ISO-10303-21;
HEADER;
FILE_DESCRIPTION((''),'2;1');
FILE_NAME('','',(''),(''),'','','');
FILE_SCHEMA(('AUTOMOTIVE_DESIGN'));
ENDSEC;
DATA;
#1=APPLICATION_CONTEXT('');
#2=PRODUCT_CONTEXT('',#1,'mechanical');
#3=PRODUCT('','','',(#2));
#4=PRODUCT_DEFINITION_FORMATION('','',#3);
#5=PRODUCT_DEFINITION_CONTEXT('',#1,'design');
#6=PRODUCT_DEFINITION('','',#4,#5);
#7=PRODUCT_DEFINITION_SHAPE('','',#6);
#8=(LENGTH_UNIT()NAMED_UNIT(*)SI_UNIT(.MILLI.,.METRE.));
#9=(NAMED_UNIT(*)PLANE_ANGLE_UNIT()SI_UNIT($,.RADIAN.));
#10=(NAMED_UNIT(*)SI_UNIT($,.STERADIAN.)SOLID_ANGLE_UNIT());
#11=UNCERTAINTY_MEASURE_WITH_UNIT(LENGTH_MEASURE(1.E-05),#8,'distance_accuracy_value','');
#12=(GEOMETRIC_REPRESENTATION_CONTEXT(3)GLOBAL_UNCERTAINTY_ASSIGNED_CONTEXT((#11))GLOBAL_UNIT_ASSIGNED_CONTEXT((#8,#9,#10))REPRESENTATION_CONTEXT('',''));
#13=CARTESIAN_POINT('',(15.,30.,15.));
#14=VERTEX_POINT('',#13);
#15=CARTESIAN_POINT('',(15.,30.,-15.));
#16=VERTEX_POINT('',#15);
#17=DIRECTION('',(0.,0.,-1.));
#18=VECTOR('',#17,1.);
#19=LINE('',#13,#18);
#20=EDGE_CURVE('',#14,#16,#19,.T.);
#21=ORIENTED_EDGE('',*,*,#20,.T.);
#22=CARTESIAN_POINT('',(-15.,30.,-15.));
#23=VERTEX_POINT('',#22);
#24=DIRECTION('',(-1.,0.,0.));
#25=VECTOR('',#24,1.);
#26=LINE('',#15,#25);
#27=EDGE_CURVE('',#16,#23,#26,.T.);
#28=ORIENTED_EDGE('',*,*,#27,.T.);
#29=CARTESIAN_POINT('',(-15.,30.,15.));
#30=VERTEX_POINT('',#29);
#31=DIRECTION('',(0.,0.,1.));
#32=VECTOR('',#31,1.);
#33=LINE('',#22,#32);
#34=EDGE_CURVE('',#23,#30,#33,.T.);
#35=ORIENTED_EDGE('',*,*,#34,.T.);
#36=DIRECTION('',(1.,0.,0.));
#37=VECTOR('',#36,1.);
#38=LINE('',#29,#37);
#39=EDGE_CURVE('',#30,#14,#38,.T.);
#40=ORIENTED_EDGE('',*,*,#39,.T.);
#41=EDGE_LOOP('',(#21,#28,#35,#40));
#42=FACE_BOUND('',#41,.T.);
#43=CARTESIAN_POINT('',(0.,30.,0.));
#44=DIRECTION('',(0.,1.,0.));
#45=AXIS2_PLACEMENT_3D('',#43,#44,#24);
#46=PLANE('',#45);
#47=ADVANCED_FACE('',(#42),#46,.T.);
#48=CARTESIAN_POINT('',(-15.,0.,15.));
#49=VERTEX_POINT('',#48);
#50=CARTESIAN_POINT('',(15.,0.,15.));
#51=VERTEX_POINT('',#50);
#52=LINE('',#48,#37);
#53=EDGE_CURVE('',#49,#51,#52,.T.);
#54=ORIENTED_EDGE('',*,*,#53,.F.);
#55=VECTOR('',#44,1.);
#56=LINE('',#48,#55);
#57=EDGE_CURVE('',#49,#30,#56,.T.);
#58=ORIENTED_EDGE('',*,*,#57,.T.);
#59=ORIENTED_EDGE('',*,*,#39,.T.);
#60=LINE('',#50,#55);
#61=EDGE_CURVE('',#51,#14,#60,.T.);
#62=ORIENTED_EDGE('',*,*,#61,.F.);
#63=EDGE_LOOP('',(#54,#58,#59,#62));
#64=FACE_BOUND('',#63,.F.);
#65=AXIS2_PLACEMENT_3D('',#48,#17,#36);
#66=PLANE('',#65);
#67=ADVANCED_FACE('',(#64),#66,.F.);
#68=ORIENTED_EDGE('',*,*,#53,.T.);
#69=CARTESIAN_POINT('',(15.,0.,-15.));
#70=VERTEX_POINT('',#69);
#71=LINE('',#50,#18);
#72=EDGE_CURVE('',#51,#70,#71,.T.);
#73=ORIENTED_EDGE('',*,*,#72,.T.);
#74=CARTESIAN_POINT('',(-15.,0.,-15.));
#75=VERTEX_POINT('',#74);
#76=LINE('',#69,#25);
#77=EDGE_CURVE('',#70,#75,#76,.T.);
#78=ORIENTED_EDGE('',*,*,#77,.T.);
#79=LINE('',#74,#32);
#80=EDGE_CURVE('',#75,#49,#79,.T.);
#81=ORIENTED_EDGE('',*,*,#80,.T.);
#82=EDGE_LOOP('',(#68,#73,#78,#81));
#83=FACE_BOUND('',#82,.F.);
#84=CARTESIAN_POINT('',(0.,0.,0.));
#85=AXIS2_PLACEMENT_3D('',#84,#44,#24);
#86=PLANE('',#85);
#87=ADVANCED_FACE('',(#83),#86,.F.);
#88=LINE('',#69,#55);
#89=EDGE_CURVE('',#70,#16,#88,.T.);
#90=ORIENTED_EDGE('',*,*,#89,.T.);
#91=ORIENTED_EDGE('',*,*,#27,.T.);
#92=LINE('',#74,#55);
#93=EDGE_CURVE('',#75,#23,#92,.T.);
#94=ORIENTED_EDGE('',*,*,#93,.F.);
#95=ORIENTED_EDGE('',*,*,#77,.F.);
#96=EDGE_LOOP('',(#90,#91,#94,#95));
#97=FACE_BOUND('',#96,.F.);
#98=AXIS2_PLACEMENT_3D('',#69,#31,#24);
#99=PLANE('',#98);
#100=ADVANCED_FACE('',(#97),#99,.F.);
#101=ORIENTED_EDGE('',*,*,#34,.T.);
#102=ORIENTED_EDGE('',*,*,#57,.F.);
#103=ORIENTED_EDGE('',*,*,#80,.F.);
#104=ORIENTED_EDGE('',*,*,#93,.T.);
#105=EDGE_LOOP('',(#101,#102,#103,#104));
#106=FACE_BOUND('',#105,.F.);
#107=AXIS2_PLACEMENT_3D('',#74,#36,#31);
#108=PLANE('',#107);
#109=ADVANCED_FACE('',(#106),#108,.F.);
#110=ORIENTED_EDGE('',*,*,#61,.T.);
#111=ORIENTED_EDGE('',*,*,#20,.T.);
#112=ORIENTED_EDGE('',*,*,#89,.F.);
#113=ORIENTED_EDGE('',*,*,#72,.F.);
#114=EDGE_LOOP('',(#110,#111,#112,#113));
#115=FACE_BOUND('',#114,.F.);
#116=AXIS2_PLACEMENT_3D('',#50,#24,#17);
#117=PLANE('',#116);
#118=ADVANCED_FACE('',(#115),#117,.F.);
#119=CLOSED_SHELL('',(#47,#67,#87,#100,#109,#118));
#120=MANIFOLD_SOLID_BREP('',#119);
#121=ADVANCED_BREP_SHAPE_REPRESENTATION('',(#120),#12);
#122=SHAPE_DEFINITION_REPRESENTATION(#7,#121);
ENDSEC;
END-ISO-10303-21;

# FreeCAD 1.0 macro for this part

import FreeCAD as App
import Part
import Sketcher


def add_polygon(sketch, points):
    """Adds a closed chain of lines whose ends are joined by coincident constraints."""
    first, n = sketch.GeometryCount, len(points)
    for a, b in zip(points, points[1:] + points[:1]):
        sketch.addGeometry(Part.LineSegment(App.Vector(*a, 0), App.Vector(*b, 0)), False)
    for i in range(n):
        sketch.addConstraint(Sketcher.Constraint("Coincident", first + i, 2, first + (i + 1) % n, 1))

doc = App.newDocument("Part")
params = doc.addObject("Spreadsheet::Sheet", "Params")
for row, (alias, value) in enumerate([
    ("sketch1_width", "30 mm"),
    ("pad1_length", "30 mm"),
], start=1):
    params.set(f"A{row}", alias)
    params.set(f"B{row}", "=" + value)
    params.setAlias(f"B{row}", alias)

body = doc.addObject("PartDesign::Body", "Body")

# Sketch on XZ plane
sketch1 = body.newObject("Sketcher::SketchObject", "Sketch")
sketch1.AttachmentSupport = (doc.getObject("XZ_Plane"), [""])
sketch1.MapMode = "FlatFace"
add_polygon(sketch1, [(15, 15), (15, -15), (-15, -15), (-15, 15)])  # lines 0-3
sketch1.addConstraint([
    Sketcher.Constraint("Vertical", 0),
    Sketcher.Constraint("Horizontal", 1),
    Sketcher.Constraint("Vertical", 2),
    Sketcher.Constraint("Horizontal", 3),
    Sketcher.Constraint("Symmetric", 0, 2, 2, 2, -1, 1),
    Sketcher.Constraint("Equal", 3, 0),
    Sketcher.Constraint("DistanceX", 1, 2, 1, 1, 30.0),
])
sketch1.setExpression("Constraints[10]", "Params.sketch1_width")
pad1 = body.newObject("PartDesign::Pad", "Pad")
pad1.Profile = sketch1
pad1.setExpression("Length", "Params.pad1_length")
pad1.Reversed = True

doc.recompute()
